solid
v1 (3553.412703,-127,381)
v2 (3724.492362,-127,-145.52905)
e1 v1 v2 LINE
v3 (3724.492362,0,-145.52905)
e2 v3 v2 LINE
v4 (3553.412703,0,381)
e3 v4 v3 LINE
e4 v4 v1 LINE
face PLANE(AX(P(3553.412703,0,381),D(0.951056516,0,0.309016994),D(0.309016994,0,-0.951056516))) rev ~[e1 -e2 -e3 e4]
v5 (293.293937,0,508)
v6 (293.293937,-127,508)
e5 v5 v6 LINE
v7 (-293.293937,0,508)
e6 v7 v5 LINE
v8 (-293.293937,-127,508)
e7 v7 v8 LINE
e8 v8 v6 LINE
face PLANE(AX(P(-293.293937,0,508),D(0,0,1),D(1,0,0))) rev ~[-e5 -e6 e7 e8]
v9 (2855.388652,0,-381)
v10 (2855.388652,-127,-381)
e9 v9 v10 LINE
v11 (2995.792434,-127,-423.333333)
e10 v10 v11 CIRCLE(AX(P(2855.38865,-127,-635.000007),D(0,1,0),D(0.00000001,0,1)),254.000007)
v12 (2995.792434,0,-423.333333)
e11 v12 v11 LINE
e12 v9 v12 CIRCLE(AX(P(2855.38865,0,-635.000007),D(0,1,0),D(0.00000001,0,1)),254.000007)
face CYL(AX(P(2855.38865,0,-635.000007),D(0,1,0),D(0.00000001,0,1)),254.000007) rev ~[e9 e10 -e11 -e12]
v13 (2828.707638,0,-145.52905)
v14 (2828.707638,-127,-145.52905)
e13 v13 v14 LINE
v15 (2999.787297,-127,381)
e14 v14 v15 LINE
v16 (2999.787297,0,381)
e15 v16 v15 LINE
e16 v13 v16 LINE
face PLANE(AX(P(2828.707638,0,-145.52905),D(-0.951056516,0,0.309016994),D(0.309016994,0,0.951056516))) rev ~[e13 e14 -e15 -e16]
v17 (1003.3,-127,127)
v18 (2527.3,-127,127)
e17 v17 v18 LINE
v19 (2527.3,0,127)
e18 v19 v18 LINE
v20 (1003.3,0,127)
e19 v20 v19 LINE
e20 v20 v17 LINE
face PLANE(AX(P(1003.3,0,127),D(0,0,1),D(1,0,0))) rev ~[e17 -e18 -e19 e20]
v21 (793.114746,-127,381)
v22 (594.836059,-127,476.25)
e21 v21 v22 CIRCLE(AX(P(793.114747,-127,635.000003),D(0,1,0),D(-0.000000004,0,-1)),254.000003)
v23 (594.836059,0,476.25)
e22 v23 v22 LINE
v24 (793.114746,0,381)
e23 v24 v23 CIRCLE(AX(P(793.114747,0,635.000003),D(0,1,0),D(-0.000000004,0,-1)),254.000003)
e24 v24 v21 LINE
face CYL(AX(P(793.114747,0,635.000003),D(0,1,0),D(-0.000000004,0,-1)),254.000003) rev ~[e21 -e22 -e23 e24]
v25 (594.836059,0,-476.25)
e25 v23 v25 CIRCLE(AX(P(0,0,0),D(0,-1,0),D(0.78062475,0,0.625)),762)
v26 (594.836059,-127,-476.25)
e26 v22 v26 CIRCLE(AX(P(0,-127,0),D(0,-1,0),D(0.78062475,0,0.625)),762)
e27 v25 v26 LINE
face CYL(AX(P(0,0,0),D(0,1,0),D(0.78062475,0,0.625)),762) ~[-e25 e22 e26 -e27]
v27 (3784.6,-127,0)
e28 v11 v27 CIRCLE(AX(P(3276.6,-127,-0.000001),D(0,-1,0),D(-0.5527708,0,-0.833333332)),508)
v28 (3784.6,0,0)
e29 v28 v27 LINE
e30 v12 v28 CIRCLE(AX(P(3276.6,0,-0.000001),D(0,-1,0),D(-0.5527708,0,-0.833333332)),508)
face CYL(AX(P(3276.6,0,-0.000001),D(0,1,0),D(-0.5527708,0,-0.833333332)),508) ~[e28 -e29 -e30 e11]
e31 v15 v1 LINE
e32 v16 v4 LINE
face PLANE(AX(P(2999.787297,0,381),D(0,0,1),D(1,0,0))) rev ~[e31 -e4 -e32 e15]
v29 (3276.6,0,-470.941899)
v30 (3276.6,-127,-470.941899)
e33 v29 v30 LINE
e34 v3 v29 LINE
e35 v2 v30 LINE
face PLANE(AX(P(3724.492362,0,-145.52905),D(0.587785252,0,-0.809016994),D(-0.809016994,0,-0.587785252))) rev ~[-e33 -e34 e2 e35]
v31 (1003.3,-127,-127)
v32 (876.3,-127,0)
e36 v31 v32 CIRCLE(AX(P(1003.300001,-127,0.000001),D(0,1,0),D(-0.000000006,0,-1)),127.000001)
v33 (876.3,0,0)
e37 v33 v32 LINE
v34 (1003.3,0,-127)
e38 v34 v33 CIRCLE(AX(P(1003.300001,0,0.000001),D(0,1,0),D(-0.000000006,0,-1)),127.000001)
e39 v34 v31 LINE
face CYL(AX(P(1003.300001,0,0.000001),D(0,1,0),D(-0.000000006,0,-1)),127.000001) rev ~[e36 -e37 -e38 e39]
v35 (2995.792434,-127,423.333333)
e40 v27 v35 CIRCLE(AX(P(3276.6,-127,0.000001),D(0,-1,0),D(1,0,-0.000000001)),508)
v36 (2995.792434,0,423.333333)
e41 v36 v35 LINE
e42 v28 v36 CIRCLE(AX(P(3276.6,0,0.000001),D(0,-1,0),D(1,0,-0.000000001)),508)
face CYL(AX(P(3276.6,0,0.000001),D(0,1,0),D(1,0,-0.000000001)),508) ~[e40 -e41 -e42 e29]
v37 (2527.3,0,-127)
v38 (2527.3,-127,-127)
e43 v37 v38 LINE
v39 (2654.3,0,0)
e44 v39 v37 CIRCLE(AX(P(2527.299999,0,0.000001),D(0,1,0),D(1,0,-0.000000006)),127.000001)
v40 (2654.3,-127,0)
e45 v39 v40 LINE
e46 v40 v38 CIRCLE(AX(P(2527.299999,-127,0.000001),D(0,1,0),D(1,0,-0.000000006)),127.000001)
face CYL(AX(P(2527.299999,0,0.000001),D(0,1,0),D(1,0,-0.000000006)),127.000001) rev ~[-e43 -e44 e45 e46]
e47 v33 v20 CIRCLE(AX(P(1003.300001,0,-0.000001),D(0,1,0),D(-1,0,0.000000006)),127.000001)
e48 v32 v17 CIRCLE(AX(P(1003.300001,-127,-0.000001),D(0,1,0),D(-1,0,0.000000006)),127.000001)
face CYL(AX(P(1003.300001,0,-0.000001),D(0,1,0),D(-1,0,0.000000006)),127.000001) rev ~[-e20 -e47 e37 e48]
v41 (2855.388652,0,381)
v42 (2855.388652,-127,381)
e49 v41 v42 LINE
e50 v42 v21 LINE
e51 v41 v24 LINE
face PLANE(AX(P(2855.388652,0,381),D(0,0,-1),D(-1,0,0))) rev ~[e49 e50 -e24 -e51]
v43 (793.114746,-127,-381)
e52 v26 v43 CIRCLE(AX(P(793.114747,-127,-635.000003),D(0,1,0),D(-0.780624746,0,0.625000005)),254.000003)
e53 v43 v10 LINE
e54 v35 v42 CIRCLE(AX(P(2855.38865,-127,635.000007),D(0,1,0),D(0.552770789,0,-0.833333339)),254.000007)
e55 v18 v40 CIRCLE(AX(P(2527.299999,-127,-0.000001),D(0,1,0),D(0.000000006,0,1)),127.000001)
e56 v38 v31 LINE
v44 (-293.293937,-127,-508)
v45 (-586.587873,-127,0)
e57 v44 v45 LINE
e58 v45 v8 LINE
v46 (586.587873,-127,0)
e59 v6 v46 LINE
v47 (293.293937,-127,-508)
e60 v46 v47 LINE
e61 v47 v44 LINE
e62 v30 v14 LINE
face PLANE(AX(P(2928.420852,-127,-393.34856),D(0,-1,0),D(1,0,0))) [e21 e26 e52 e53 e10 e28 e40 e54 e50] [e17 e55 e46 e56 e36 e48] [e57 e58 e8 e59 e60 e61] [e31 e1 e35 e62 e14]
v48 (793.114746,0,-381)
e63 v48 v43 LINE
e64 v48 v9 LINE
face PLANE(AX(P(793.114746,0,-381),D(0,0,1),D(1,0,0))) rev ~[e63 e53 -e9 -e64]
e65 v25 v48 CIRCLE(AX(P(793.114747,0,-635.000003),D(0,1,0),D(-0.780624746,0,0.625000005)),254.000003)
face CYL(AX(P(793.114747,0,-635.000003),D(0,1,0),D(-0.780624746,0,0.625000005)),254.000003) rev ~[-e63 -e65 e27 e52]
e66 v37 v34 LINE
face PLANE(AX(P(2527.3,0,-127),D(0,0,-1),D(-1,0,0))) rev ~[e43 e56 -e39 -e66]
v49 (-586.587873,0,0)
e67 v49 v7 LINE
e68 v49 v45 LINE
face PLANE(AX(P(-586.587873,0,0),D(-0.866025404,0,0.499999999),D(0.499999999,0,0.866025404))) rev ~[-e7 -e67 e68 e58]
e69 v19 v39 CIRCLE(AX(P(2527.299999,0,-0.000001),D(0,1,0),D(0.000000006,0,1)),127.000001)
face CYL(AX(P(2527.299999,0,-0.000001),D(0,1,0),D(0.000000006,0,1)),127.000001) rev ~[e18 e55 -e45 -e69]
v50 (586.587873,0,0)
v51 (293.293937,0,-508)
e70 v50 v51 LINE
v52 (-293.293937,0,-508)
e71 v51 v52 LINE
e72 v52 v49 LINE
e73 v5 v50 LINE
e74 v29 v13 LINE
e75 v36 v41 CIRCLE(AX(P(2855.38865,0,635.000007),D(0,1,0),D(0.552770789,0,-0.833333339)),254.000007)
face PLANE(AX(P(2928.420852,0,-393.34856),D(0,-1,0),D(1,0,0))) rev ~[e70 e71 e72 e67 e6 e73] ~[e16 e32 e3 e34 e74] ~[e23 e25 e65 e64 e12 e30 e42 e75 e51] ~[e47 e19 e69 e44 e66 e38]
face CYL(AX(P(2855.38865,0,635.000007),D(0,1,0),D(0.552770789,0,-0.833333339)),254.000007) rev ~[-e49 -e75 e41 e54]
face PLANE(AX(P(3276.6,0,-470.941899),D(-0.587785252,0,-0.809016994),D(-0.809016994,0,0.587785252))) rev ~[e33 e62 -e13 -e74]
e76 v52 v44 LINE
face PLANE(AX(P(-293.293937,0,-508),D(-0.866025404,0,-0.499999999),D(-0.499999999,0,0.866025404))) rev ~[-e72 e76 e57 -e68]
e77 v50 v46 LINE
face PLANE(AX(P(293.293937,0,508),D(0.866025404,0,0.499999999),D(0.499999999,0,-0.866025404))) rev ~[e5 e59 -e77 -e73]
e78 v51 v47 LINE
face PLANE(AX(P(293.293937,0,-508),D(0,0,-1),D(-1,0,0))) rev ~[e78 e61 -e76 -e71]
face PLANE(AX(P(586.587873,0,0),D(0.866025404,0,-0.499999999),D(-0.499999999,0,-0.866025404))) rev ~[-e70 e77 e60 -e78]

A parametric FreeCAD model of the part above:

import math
import FreeCAD as App
import Part
import Sketcher
from FreeCAD import Vector
Q = App.Units.Quantity

doc = App.newDocument("Part")
body = doc.addObject("PartDesign::Body", "Body")

# Sketch on XZ plane
sketch1 = body.newObject("Sketcher::SketchObject", "Sketch")
sketch1.AttachmentSupport = (doc.getObject("XZ_Plane"), [""])
sketch1.MapMode = "FlatFace"
sketch1.addGeometry([
    Part.ArcOfCircle(Part.Circle(Vector(2855, -635, 0), Vector(0, 0, 1), 254), math.radians(56), math.radians(90)),  # 0
    Part.ArcOfCircle(Part.Circle(Vector(3277, 0, 0), Vector(0, 0, 1), 508), math.radians(-124), math.radians(0)),  # 1
    Part.ArcOfCircle(Part.Circle(Vector(3277, 0, 0), Vector(0, 0, 1), 508), math.radians(0), math.radians(124)),  # 2
    Part.ArcOfCircle(Part.Circle(Vector(2855, 635, 0), Vector(0, 0, 1), 254), math.radians(-90), math.radians(-56)),  # 3
    Part.LineSegment(Vector(2855, 381, 0), Vector(793, 381, 0)),  # 4
    Part.ArcOfCircle(Part.Circle(Vector(793, 635, 0), Vector(0, 0, 1), 254), math.radians(-141), math.radians(-90)),  # 5
    Part.ArcOfCircle(Part.Circle(Vector(0, 0, 0), Vector(0, 0, 1), 762), math.radians(39), math.radians(321)),  # 6
    Part.ArcOfCircle(Part.Circle(Vector(793, -635, 0), Vector(0, 0, 1), 254), math.radians(90), math.radians(141)),  # 7
    Part.LineSegment(Vector(793, -381, 0), Vector(2855, -381, 0)),  # 8
    Part.LineSegment(Vector(3277, -471, 0), Vector(2829, -146, 0)),  # 9
    Part.LineSegment(Vector(2829, -146, 0), Vector(3000, 381, 0)),  # 10
    Part.LineSegment(Vector(3000, 381, 0), Vector(3553, 381, 0)),  # 11
    Part.LineSegment(Vector(3553, 381, 0), Vector(3724, -146, 0)),  # 12
    Part.LineSegment(Vector(3724, -146, 0), Vector(3277, -471, 0)),  # 13
    Part.LineSegment(Vector(293, -508, 0), Vector(-293, -508, 0)),  # 14
    Part.LineSegment(Vector(-293, -508, 0), Vector(-587, 0, 0)),  # 15
    Part.LineSegment(Vector(-587, 0, 0), Vector(-293, 508, 0)),  # 16
    Part.LineSegment(Vector(-293, 508, 0), Vector(293, 508, 0)),  # 17
    Part.LineSegment(Vector(293, 508, 0), Vector(587, 0, 0)),  # 18
    Part.LineSegment(Vector(587, 0, 0), Vector(293, -508, 0)),  # 19
    Part.ArcOfCircle(Part.Circle(Vector(2527, 0, 0), Vector(0, 0, 1), 127), math.radians(-90), math.radians(0)),  # 20
    Part.LineSegment(Vector(2527, -127, 0), Vector(1003, -127, 0)),  # 21
    Part.ArcOfCircle(Part.Circle(Vector(1003, 0, 0), Vector(0, 0, 1), 127), math.radians(-180), math.radians(-90)),  # 22
    Part.ArcOfCircle(Part.Circle(Vector(1003, 0, 0), Vector(0, 0, 1), 127), math.radians(90), math.radians(180)),  # 23
    Part.LineSegment(Vector(1003, 127, 0), Vector(2527, 127, 0)),  # 24
    Part.ArcOfCircle(Part.Circle(Vector(2527, 0, 0), Vector(0, 0, 1), 127), math.radians(0), math.radians(90)),  # 25
], False)
sketch1.addConstraint([
    Sketcher.Constraint("Tangent", 0, 1, 1, 1),
    Sketcher.Constraint("Coincident", 1, 2, 2, 1),
    Sketcher.Constraint("Tangent", 2, 2, 3, 2),
    Sketcher.Constraint("Tangent", 3, 1, 4, 1),
    Sketcher.Constraint("Tangent", 4, 2, 5, 2),
    Sketcher.Constraint("Tangent", 5, 1, 6, 1),
    Sketcher.Constraint("Tangent", 6, 2, 7, 2),
    Sketcher.Constraint("Tangent", 7, 1, 8, 1),
    Sketcher.Constraint("Tangent", 8, 2, 0, 2),
    Sketcher.Constraint("Coincident", 9, 2, 10, 1),
    Sketcher.Constraint("Coincident", 10, 2, 11, 1),
    Sketcher.Constraint("Coincident", 11, 2, 12, 1),
    Sketcher.Constraint("Coincident", 12, 2, 13, 1),
    Sketcher.Constraint("Coincident", 13, 2, 9, 1),
    Sketcher.Constraint("Coincident", 14, 2, 15, 1),
    Sketcher.Constraint("Coincident", 15, 2, 16, 1),
    Sketcher.Constraint("Coincident", 16, 2, 17, 1),
    Sketcher.Constraint("Coincident", 17, 2, 18, 1),
    Sketcher.Constraint("Coincident", 18, 2, 19, 1),
    Sketcher.Constraint("Coincident", 19, 2, 14, 1),
    Sketcher.Constraint("Tangent", 20, 1, 21, 1),
    Sketcher.Constraint("Tangent", 21, 2, 22, 2),
    Sketcher.Constraint("Tangent", 22, 1, 23, 2),
    Sketcher.Constraint("Tangent", 23, 1, 24, 1),
    Sketcher.Constraint("Tangent", 24, 2, 25, 2),
    Sketcher.Constraint("Tangent", 25, 1, 20, 2),
    Sketcher.Constraint("Horizontal", 4),
    Sketcher.Constraint("Horizontal", 8),
    Sketcher.Constraint("Horizontal", 11),
    Sketcher.Constraint("Horizontal", 14),
    Sketcher.Constraint("Horizontal", 17),
    Sketcher.Constraint("Horizontal", 21),
    Sketcher.Constraint("Horizontal", 24),
    Sketcher.Constraint("Coincident", 6, 3, -1, 1),
    Sketcher.Constraint("Coincident", 2, 3, 1, 3),
    Sketcher.Constraint("Equal", 0, 3),
    Sketcher.Constraint("Equal", 5, 7),
    Sketcher.Constraint("Equal", 20, 22),
    Sketcher.Constraint("Equal", 22, 23),
    Sketcher.Constraint("Symmetric", 14, 2, 17, 2, -1, 1),
    Sketcher.Constraint("Symmetric", 15, 2, 18, 2, -1, 1),
    Sketcher.Constraint("Symmetric", 0, 3, 3, 3, -1),
    Sketcher.Constraint("PointOnObject", 20, 3, -1),
    Sketcher.Constraint("PointOnObject", 1, 2, -1),
    Sketcher.Constraint("PointOnObject", 15, 2, -1),
    Sketcher.Constraint("PointOnObject", 22, 1, -1),
    Sketcher.Constraint("PointOnObject", 25, 1, -1),
    Sketcher.Constraint("Parallel", 16, 19),
    Sketcher.Constraint("Horizontal", 4, 2, 10, 2),
    Sketcher.Constraint("Horizontal", 9, 2, 12, 2),
    Sketcher.Constraint("Vertical", 2, 3, 13, 2),
    Sketcher.Constraint("Vertical", 14, 2, 16, 2),
    Sketcher.Constraint("Equal", 9, 10),
    Sketcher.Constraint("Equal", 10, 12),
    Sketcher.Constraint("Equal", 12, 13),
    Sketcher.Constraint("Radius", 1, Q("20 in")),
    Sketcher.Constraint("Radius", 5, Q("10.0000001 in")),
    Sketcher.Constraint("Radius", 6, Q("30 in")),
    Sketcher.Constraint("Radius", 20, Q("5 in")),
    Sketcher.Constraint("DistanceX", 21, 2, 21, 1, Q("60 in")),
    Sketcher.Constraint("DistanceX", -1, 1, 1, 3, Q("129 in")),
    Sketcher.Constraint("DistanceY", -1, 1, 5, 3, Q("25.0000001 in")),
    Sketcher.Constraint("DistanceY", 14, 2, -1, 1, Q("20 in")),
    Sketcher.Constraint("Angle", 9, Q("144 deg")),
    Sketcher.Constraint("Angle", 10, Q("72 deg")),
    Sketcher.Constraint("Angle", 15, Q("120 deg")),
    Sketcher.Constraint("DistanceX", -1, 1, 20, 3, Q("99.5 in")),
    Sketcher.Constraint("Radius", 0, 254.000007),
    Sketcher.Constraint("DistanceY", 13, 2, -1, 1, 470.941899),
    Sketcher.Constraint("DistanceX", 14, 2, 14, 1, 586.587874),
])
pad1 = body.newObject("PartDesign::Pad", "Pad")
pad1.Profile = sketch1
pad1.Length = Q("5 in")

doc.recompute()
